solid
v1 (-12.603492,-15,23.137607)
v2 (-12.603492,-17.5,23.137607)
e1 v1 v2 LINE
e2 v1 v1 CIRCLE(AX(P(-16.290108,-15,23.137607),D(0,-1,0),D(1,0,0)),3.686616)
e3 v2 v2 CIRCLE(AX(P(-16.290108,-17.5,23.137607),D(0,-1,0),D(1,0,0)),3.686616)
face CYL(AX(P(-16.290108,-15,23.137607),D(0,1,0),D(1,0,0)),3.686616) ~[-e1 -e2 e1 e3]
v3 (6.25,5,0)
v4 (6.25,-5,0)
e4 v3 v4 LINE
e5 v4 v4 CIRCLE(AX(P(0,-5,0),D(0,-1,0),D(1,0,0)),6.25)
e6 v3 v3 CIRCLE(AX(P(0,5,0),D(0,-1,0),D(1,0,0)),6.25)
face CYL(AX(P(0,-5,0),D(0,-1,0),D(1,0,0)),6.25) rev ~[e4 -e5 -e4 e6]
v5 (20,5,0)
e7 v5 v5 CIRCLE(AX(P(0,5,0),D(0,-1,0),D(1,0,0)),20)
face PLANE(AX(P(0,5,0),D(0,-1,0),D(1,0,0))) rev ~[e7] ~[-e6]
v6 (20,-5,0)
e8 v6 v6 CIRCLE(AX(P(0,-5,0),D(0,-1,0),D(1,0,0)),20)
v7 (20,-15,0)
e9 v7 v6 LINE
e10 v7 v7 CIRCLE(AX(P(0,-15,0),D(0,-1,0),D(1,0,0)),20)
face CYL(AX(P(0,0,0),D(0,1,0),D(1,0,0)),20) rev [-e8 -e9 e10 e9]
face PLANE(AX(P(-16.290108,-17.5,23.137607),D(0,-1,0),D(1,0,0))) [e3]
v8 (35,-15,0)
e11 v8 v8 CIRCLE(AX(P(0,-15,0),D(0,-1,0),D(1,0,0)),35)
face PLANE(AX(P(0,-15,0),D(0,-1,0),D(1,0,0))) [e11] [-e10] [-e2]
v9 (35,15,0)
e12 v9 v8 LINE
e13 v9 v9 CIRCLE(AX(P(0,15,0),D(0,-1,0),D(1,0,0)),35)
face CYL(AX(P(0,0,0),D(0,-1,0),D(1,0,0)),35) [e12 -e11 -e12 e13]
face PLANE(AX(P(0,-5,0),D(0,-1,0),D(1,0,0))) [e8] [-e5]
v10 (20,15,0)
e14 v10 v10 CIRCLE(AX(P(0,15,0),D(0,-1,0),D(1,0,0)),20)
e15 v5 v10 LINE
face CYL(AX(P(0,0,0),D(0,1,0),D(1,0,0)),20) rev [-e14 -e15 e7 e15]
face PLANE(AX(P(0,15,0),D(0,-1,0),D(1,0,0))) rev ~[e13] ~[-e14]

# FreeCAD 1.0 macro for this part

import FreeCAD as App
import Part
import Sketcher
Q = App.Units.Quantity

doc = App.newDocument("Part")
body = doc.addObject("PartDesign::Body", "Body")

sketch1 = body.newObject("Sketcher::SketchObject", "Sketch")
sketch1.AttachmentSupport = (doc.getObject("XZ_Plane"), [""])
sketch1.MapMode = "FlatFace"
sketch1.addGeometry(Part.Circle(App.Vector(0, 0, 0), App.Vector(0, 0, 1), 35), False)
sketch1.addGeometry(Part.Circle(App.Vector(0, 0, 0), App.Vector(0, 0, 1), 20), False)
sketch1.addConstraint(Sketcher.Constraint("Coincident", 0, 3, -1, 1))
sketch1.addConstraint(Sketcher.Constraint("Coincident", 1, 3, -1, 1))
sketch1.addConstraint(Sketcher.Constraint("Diameter", 0, Q("70 mm")))
sketch1.addConstraint(Sketcher.Constraint("Diameter", 1, Q("40 mm")))
pad1 = body.newObject("PartDesign::Pad", "Pad")
pad1.Profile = sketch1
pad1.Length = 30
pad1.Midplane = True

sketch2 = body.newObject("Sketcher::SketchObject", "Sketch001")
sketch2.AttachmentSupport = (doc.getObject("XZ_Plane"), [""])
sketch2.MapMode = "FlatFace"
sketch2.addGeometry(Part.Circle(App.Vector(0, 0, 0), App.Vector(0, 0, 1), 20), False)
sketch2.addConstraint(Sketcher.Constraint("Coincident", 0, 3, -1, 1))
sketch2.addConstraint(Sketcher.Constraint("Diameter", 0, Q("40 mm")))
pad2 = body.newObject("PartDesign::Pad", "Pad001")
pad2.Profile = sketch2
pad2.Length = 10
pad2.Midplane = True

sketch3 = body.newObject("Sketcher::SketchObject", "Sketch002")
sketch3.AttachmentSupport = (doc.getObject("XZ_Plane"), [""])
sketch3.MapMode = "FlatFace"
sketch3.AttachmentOffset = App.Placement(App.Vector(0, 0, 5), App.Rotation())
sketch3.addGeometry(Part.Circle(App.Vector(0, 0, 0), App.Vector(0, 0, 1), 6), False)
sketch3.addConstraint(Sketcher.Constraint("Coincident", 0, 3, -1, 1))
sketch3.addConstraint(Sketcher.Constraint("Diameter", 0, Q("12.5 mm")))
pocket1 = body.newObject("PartDesign::Pocket", "Pocket")
pocket1.Profile = sketch3
pocket1.Length = 40
pocket1.Midplane = True

sketch4 = body.newObject("Sketcher::SketchObject", "Sketch003")
sketch4.AttachmentSupport = (doc.getObject("XZ_Plane"), [""])
sketch4.MapMode = "FlatFace"
sketch4.AttachmentOffset = App.Placement(App.Vector(0, 0, 15), App.Rotation())
sketch4.addGeometry(Part.Circle(App.Vector(-16.3, 23.1, 0), App.Vector(0, 0, 1), 3.7), False)
sketch4.addConstraint(Sketcher.Constraint("Diameter", 0, Q("7.373232 mm")))
sketch4.addConstraint(Sketcher.Constraint("DistanceX", 0, 3, -1, 1, Q("16.290108 mm")))
sketch4.addConstraint(Sketcher.Constraint("DistanceY", -1, 1, 0, 3, Q("23.137607 mm")))
pad3 = body.newObject("PartDesign::Pad", "Pad002")
pad3.Profile = sketch4
pad3.Length = 2.5

doc.recompute()
